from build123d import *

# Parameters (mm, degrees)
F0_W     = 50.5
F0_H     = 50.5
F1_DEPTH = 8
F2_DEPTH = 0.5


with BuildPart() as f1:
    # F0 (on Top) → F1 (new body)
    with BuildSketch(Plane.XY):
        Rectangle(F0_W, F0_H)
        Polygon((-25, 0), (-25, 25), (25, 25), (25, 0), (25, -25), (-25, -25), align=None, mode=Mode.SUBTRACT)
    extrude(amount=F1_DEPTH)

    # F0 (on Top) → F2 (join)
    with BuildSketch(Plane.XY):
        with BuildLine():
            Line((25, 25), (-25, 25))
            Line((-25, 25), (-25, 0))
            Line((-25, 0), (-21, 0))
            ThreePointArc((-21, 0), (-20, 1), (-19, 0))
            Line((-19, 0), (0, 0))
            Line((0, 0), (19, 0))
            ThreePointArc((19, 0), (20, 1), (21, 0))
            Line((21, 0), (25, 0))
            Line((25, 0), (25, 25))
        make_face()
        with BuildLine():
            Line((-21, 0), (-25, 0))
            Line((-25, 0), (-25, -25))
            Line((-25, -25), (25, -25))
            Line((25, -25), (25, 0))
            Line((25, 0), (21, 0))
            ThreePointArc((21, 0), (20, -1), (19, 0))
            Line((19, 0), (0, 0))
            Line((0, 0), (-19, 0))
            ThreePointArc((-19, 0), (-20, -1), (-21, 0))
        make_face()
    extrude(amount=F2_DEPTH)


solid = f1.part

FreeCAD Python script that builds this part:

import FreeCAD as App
import Part
import Sketcher
from FreeCAD import Vector


def add_polygon(sketch, points):
    """Adds a closed chain of lines whose ends are joined by coincident constraints."""
    first, n = sketch.GeometryCount, len(points)
    for a, b in zip(points, points[1:] + points[:1]):
        sketch.addGeometry(Part.LineSegment(App.Vector(*a, 0), App.Vector(*b, 0)), False)
    for i in range(n):
        sketch.addConstraint(Sketcher.Constraint("Coincident", first + i, 2, first + (i + 1) % n, 1))

doc = App.newDocument("Part")
body = doc.addObject("PartDesign::Body", "Body")

# Sketch on XY plane
sketch1 = doc.addObject("Sketcher::SketchObject", "Sketch")
body.addObject(sketch1)
sketch1.AttachmentSupport = (doc.XY_Plane, [""])
sketch1.MapMode = "FlatFace"
add_polygon(sketch1, [(-25, 25), (-25, -25), (25, -25), (25, 25)])  # lines 0-3
add_polygon(sketch1, [(-25, -25), (-25, 25), (25, 25), (25, -25)])  # lines 4-7
sketch1.addConstraint(Sketcher.Constraint("Vertical", 0))
sketch1.addConstraint(Sketcher.Constraint("Horizontal", 1))
sketch1.addConstraint(Sketcher.Constraint("Vertical", 2))
sketch1.addConstraint(Sketcher.Constraint("Horizontal", 3))
sketch1.addConstraint(Sketcher.Constraint("Vertical", 4))
sketch1.addConstraint(Sketcher.Constraint("Horizontal", 5))
sketch1.addConstraint(Sketcher.Constraint("Vertical", 6))
sketch1.addConstraint(Sketcher.Constraint("Horizontal", 7))
sketch1.addConstraint(Sketcher.Constraint("Symmetric", 0, 2, 2, 2, -1, 1))
sketch1.addConstraint(Sketcher.Constraint("Symmetric", 4, 2, 6, 2, -1, 1))
sketch1.addConstraint(Sketcher.Constraint("Equal", 3, 0))
sketch1.addConstraint(Sketcher.Constraint("Equal", 7, 4))
sketch1.addConstraint(Sketcher.Constraint("DistanceX", 5, 1, 5, 2, 50.0))
sketch1.addConstraint(Sketcher.Constraint("DistanceX", 1, 1, 1, 2, 50.5))
pad1 = doc.addObject("PartDesign::Pad", "Pad")
body.addObject(pad1)
pad1.Profile = sketch1
pad1.Length = 8

# Sketch on XY plane
sketch2 = doc.addObject("Sketcher::SketchObject", "Sketch001")
body.addObject(sketch2)
sketch2.AttachmentSupport = (doc.XY_Plane, [""])
sketch2.MapMode = "FlatFace"
add_polygon(sketch2, [(25, 25), (-25, 25), (-25, -25), (25, -25)])  # lines 0-3
sketch2.addGeometry(Part.Circle(Vector(-20, 0, 0), Vector(0, 0, 1), 1), False)  # 4
sketch2.addGeometry(Part.Circle(Vector(20, 0, 0), Vector(0, 0, 1), 1), False)  # 5
sketch2.addConstraint(Sketcher.Constraint("Horizontal", 0))
sketch2.addConstraint(Sketcher.Constraint("Vertical", 1))
sketch2.addConstraint(Sketcher.Constraint("Horizontal", 2))
sketch2.addConstraint(Sketcher.Constraint("Vertical", 3))
sketch2.addConstraint(Sketcher.Constraint("Equal", 4, 5))
sketch2.addConstraint(Sketcher.Constraint("Symmetric", 4, 3, 5, 3, -1, 1))
sketch2.addConstraint(Sketcher.Constraint("Symmetric", 0, 2, 2, 2, -1, 1))
sketch2.addConstraint(Sketcher.Constraint("PointOnObject", 4, 3, -1))
sketch2.addConstraint(Sketcher.Constraint("Equal", 2, 1))
sketch2.addConstraint(Sketcher.Constraint("Diameter", 4, 2.0))
sketch2.addConstraint(Sketcher.Constraint("DistanceX", 0, 2, 0, 1, 50.0))
sketch2.addConstraint(Sketcher.Constraint("DistanceX", 4, 3, -1, 1, 20.0))
pad2 = doc.addObject("PartDesign::Pad", "Pad001")
body.addObject(pad2)
pad2.Profile = sketch2
pad2.Length = 0.5

doc.recompute()
